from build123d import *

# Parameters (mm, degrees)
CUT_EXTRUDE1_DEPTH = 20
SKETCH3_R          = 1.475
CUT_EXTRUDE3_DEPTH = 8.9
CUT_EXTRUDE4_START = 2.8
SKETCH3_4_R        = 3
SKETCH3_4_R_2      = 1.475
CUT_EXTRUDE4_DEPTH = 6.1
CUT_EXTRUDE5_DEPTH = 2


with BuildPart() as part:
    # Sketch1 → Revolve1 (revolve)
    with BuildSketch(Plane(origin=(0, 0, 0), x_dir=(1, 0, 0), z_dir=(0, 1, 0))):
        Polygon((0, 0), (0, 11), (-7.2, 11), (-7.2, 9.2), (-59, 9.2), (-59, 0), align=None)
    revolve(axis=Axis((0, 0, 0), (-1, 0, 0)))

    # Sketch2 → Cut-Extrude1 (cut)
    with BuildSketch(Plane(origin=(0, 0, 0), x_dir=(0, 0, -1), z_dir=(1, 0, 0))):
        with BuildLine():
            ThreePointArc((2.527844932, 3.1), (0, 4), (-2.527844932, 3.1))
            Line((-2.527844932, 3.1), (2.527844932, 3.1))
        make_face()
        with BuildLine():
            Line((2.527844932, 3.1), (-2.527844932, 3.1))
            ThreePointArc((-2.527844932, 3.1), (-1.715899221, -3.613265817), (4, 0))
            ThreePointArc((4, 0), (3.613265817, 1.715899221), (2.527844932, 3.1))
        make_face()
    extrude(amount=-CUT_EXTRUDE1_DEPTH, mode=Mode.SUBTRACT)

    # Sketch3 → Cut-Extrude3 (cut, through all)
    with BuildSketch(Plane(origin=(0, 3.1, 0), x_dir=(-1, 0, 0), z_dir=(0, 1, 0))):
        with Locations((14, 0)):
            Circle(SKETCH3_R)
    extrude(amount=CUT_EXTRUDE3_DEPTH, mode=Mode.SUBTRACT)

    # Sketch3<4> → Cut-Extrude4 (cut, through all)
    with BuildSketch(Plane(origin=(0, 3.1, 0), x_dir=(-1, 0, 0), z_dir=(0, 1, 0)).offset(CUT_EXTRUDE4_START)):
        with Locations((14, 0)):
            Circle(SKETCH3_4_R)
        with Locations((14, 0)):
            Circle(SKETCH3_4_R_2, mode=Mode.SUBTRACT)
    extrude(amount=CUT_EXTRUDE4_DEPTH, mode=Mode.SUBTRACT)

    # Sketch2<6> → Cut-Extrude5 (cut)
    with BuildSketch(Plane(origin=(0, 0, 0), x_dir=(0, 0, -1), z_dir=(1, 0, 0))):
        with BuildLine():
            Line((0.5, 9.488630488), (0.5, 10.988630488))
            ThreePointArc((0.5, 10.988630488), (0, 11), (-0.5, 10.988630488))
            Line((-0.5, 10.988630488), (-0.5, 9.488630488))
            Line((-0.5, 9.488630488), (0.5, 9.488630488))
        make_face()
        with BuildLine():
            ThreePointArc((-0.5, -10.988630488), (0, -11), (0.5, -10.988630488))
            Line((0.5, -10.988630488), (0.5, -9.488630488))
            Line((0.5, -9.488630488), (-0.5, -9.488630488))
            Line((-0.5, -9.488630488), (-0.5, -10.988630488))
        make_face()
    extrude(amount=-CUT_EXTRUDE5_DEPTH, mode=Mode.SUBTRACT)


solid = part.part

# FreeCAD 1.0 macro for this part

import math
import FreeCAD as App
import Part
import Sketcher

doc = App.newDocument("Part")
body = doc.addObject("PartDesign::Body", "Body")

# Sketch on XZ plane
sketch1 = body.newObject("Sketcher::SketchObject", "Sketch")
sketch1.AttachmentSupport = (doc.getObject("XZ_Plane"), [""])
sketch1.MapMode = "FlatFace"
sketch1.addGeometry([
    Part.LineSegment(App.Vector(0, 0, 0), App.Vector(0, -11, 0)),  # 0
    Part.LineSegment(App.Vector(0, -11, 0), App.Vector(-7.2, -11, 0)),  # 1
    Part.LineSegment(App.Vector(-7.2, -11, 0), App.Vector(-7.2, -9.2, 0)),  # 2
    Part.LineSegment(App.Vector(-7.2, -9.2, 0), App.Vector(-59, -9.2, 0)),  # 3
    Part.LineSegment(App.Vector(-59, -9.2, 0), App.Vector(-59, 0, 0)),  # 4
    Part.LineSegment(App.Vector(-59, 0, 0), App.Vector(0, 0, 0)),  # 5
], False)
sketch1.addConstraint([
    Sketcher.Constraint("Coincident", 0, 2, 1, 1),
    Sketcher.Constraint("Coincident", 1, 2, 2, 1),
    Sketcher.Constraint("Coincident", 2, 2, 3, 1),
    Sketcher.Constraint("Coincident", 3, 2, 4, 1),
    Sketcher.Constraint("Coincident", 4, 2, 5, 1),
    Sketcher.Constraint("Coincident", 5, 2, 0, 1),
    Sketcher.Constraint("Vertical", 0),
    Sketcher.Constraint("Horizontal", 1),
    Sketcher.Constraint("Vertical", 2),
    Sketcher.Constraint("Horizontal", 3),
    Sketcher.Constraint("Vertical", 4),
    Sketcher.Constraint("Horizontal", 5),
    Sketcher.Constraint("Coincident", 5, 2, -1, 1),
    Sketcher.Constraint("DistanceX", 5, 1, 5, 2, 59.0),
    Sketcher.Constraint("DistanceY", 0, 2, 0, 1, 11.0),
    Sketcher.Constraint("DistanceX", 1, 2, 1, 1, 7.2),
    Sketcher.Constraint("DistanceY", 2, 1, 2, 2, 1.8),
])
revolution = body.newObject("PartDesign::Revolution", "Revolution")
revolution.Profile = sketch1
revolution.ReferenceAxis = (sketch1, ["H_Axis"])
revolution.Angle = 360

# Sketch on YZ plane
sketch2 = body.newObject("Sketcher::SketchObject", "Sketch001")
sketch2.AttachmentSupport = (doc.getObject("YZ_Plane"), [""])
sketch2.MapMode = "FlatFace"
sketch2.addGeometry([
    Part.ArcOfCircle(Part.Circle(App.Vector(0, 0, 0), App.Vector(0, 0, 1), 4), math.radians(-39), math.radians(39)),
    Part.ArcOfCircle(Part.Circle(App.Vector(0, 0, 0), App.Vector(0, 0, 1), 4), math.radians(39), math.radians(270)),
    Part.ArcOfCircle(Part.Circle(App.Vector(0, 0, 0), App.Vector(0, 0, 1), 4), math.radians(-90), math.radians(-39)),
], False)
sketch2.addConstraint([
    Sketcher.Constraint("Tangent", 0, 2, 1, 1),
    Sketcher.Constraint("Tangent", 1, 2, 2, 1),
    Sketcher.Constraint("Tangent", 2, 2, 0, 1),
    Sketcher.Constraint("Coincident", 0, 3, -1, 1),
    Sketcher.Constraint("PointOnObject", 1, 2, -2),
    Sketcher.Constraint("Vertical", 0, 2, 2, 2),
    Sketcher.Constraint("Radius", 0, 4.0),
    Sketcher.Constraint("DistanceX", -1, 1, 0, 2, 3.1),
])
pocket1 = body.newObject("PartDesign::Pocket", "Pocket")
pocket1.Profile = sketch2
pocket1.Length = 20

# Sketch on XZ plane
sketch3 = body.newObject("Sketcher::SketchObject", "Sketch002")
sketch3.AttachmentSupport = (doc.getObject("XZ_Plane"), [""])
sketch3.MapMode = "FlatFace"
sketch3.AttachmentOffset = App.Placement(App.Vector(0, 0, -3.1), App.Rotation())
sketch3.addGeometry(Part.Circle(App.Vector(-14, 0, 0), App.Vector(0, 0, 1), 1.5), False)
sketch3.addConstraint([
    Sketcher.Constraint("PointOnObject", 0, 3, -1),
    Sketcher.Constraint("Diameter", 0, 2.95),
    Sketcher.Constraint("DistanceX", 0, 3, -1, 1, 14.0),
])
pocket2 = body.newObject("PartDesign::Pocket", "Pocket001")
pocket2.Profile = sketch3
pocket2.Type = "ThroughAll"

# Sketch on XZ plane
sketch4 = body.newObject("Sketcher::SketchObject", "Sketch003")
sketch4.AttachmentSupport = (doc.getObject("XZ_Plane"), [""])
sketch4.MapMode = "FlatFace"
sketch4.AttachmentOffset = App.Placement(App.Vector(0, 0, -5.9), App.Rotation())
sketch4.addGeometry([
    Part.Circle(App.Vector(-14, 0, 0), App.Vector(0, 0, 1), 3),
    Part.Circle(App.Vector(-14, 0, 0), App.Vector(0, 0, 1), 1.5),
], False)
sketch4.addConstraint([
    Sketcher.Constraint("Coincident", 1, 3, 0, 3),
    Sketcher.Constraint("PointOnObject", 0, 3, -1),
    Sketcher.Constraint("Diameter", 0, 6.0),
    Sketcher.Constraint("Diameter", 1, 2.95),
    Sketcher.Constraint("DistanceX", 0, 3, -1, 1, 14.0),
])
pocket3 = body.newObject("PartDesign::Pocket", "Pocket002")
pocket3.Profile = sketch4
pocket3.Type = "ThroughAll"

# Sketch on YZ plane
sketch5 = body.newObject("Sketcher::SketchObject", "Sketch004")
sketch5.AttachmentSupport = (doc.getObject("YZ_Plane"), [""])
sketch5.MapMode = "FlatFace"
sketch5.addGeometry([
    Part.LineSegment(App.Vector(9.5, -0.5, 0), App.Vector(11, -0.5, 0)),  # 0
    Part.ArcOfCircle(Part.Circle(App.Vector(0, 0, 0), App.Vector(0, 0, 1), 11), math.radians(-2.61), math.radians(2.61)),  # 1
    Part.LineSegment(App.Vector(11, 0.5, 0), App.Vector(9.5, 0.5, 0)),  # 2
    Part.LineSegment(App.Vector(9.5, 0.5, 0), App.Vector(9.5, -0.5, 0)),  # 3
    Part.ArcOfCircle(Part.Circle(App.Vector(0, 0, 0), App.Vector(0, 0, 1), 11), math.radians(177.39), math.radians(182.61)),  # 4
    Part.LineSegment(App.Vector(-11, -0.5, 0), App.Vector(-9.5, -0.5, 0)),  # 5
    Part.LineSegment(App.Vector(-9.5, -0.5, 0), App.Vector(-9.5, 0.5, 0)),  # 6
    Part.LineSegment(App.Vector(-9.5, 0.5, 0), App.Vector(-11, 0.5, 0)),  # 7
], False)
sketch5.addConstraint([
    Sketcher.Constraint("Coincident", 0, 2, 1, 1),
    Sketcher.Constraint("Coincident", 1, 2, 2, 1),
    Sketcher.Constraint("Coincident", 2, 2, 3, 1),
    Sketcher.Constraint("Coincident", 3, 2, 0, 1),
    Sketcher.Constraint("Coincident", 4, 2, 5, 1),
    Sketcher.Constraint("Coincident", 5, 2, 6, 1),
    Sketcher.Constraint("Coincident", 6, 2, 7, 1),
    Sketcher.Constraint("Coincident", 7, 2, 4, 1),
    Sketcher.Constraint("Horizontal", 0),
    Sketcher.Constraint("Horizontal", 2),
    Sketcher.Constraint("Vertical", 3),
    Sketcher.Constraint("Horizontal", 5),
    Sketcher.Constraint("Vertical", 6),
    Sketcher.Constraint("Horizontal", 7),
    Sketcher.Constraint("Coincident", 1, 3, -1, 1),
    Sketcher.Constraint("Coincident", 4, 3, -1, 1),
    Sketcher.Constraint("Equal", 1, 4),
    Sketcher.Constraint("Symmetric", 2, 2, 5, 2, -1, 1),
    Sketcher.Constraint("Horizontal", 3, 2, 4, 2),
    Sketcher.Constraint("Horizontal", 2, 2, 6, 2),
    Sketcher.Constraint("Radius", 1, 11.0),
    Sketcher.Constraint("DistanceY", 3, 2, 3, 1, 1.0),
    Sketcher.Constraint("DistanceX", 0, 1, 0, 2, 1.5),
])
pocket4 = body.newObject("PartDesign::Pocket", "Pocket003")
pocket4.Profile = sketch5
pocket4.Length = 2

doc.recompute()
